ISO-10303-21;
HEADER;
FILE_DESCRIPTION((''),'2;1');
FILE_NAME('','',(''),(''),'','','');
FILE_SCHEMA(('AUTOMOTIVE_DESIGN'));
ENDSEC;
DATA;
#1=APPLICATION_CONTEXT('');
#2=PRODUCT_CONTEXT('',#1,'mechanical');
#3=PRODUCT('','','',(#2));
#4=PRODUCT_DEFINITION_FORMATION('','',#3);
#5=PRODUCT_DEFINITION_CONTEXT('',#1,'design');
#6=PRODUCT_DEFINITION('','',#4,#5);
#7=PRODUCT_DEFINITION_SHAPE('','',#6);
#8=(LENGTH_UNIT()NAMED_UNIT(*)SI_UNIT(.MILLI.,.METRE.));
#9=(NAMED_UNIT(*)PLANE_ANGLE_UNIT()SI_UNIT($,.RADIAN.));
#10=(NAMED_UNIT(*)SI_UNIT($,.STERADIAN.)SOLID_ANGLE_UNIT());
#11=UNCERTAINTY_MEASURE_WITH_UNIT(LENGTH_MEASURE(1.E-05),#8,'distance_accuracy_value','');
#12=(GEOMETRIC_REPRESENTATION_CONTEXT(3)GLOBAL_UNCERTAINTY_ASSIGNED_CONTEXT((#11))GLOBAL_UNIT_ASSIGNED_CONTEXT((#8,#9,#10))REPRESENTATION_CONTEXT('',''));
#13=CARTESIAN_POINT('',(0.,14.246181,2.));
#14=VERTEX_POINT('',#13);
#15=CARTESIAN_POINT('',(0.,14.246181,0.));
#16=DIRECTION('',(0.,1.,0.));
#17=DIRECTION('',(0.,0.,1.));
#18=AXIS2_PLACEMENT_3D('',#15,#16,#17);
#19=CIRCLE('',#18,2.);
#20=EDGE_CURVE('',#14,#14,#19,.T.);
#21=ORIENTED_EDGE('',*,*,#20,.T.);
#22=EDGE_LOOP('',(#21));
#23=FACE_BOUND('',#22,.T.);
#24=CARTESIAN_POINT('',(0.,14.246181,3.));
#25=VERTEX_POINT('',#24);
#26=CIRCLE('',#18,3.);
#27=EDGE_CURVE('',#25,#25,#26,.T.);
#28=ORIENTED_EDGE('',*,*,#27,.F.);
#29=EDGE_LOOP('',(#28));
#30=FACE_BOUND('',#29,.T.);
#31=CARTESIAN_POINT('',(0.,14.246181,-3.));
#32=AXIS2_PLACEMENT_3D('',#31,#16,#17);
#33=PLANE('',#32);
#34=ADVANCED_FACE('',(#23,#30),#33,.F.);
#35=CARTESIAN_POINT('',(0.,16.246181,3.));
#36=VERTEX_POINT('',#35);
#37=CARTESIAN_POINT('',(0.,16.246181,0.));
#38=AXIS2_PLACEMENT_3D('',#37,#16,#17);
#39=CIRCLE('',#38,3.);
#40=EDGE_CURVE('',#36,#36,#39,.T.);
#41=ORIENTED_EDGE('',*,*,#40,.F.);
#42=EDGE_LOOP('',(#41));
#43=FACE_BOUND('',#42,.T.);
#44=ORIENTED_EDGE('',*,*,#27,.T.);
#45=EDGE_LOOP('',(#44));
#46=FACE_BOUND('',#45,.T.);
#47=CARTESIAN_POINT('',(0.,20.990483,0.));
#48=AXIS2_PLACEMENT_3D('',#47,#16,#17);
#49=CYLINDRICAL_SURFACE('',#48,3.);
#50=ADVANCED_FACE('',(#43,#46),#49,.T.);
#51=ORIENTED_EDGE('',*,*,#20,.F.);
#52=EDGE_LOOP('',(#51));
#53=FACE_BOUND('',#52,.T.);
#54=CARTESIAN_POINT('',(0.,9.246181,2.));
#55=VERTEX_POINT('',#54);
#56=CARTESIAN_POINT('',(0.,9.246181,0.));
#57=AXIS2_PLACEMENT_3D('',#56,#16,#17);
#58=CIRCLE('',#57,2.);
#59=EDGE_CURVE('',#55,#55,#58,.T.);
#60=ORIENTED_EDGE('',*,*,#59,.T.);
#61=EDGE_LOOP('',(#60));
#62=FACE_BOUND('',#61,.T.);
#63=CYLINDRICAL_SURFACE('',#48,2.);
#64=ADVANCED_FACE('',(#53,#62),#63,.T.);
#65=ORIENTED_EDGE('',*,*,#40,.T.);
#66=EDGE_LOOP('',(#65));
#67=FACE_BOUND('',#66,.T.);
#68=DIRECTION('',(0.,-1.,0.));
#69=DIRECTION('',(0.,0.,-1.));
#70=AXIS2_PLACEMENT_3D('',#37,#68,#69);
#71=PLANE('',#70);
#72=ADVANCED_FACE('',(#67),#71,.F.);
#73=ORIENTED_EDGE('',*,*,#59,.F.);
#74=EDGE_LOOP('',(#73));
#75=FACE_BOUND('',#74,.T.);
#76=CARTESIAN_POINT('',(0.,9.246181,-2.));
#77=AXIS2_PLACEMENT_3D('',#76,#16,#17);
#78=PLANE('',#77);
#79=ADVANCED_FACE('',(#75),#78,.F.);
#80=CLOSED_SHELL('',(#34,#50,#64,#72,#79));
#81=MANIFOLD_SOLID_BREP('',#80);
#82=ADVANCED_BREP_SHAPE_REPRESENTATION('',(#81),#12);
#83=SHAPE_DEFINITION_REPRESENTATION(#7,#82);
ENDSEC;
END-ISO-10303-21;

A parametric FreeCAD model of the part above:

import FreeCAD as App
import Part
import Sketcher
from FreeCAD import Vector


def add_polygon(sketch, points):
    """Adds a closed chain of lines whose ends are joined by coincident constraints."""
    first, n = sketch.GeometryCount, len(points)
    for a, b in zip(points, points[1:] + points[:1]):
        sketch.addGeometry(Part.LineSegment(App.Vector(*a, 0), App.Vector(*b, 0)), False)
    for i in range(n):
        sketch.addConstraint(Sketcher.Constraint("Coincident", first + i, 2, first + (i + 1) % n, 1))

doc = App.newDocument("Part")
body = doc.addObject("PartDesign::Body", "Body")

sketch1 = body.newObject("Sketcher::SketchObject", "Sketch")
sketch1.AttachmentSupport = (doc.getObject("YZ_Plane"), [""])
sketch1.MapMode = "FlatFace"
add_polygon(sketch1, [(16.246181, -3), (16.246181, 0), (9.246181, 0), (9.246181, -2), (14.246181, -2), (14.246181, -3)])
sketch1.addConstraint([
    Sketcher.Constraint("Vertical", 0),
    Sketcher.Constraint("Horizontal", 1),
    Sketcher.Constraint("Vertical", 2),
    Sketcher.Constraint("Horizontal", 3),
    Sketcher.Constraint("Vertical", 4),
    Sketcher.Constraint("Horizontal", 5),
    Sketcher.Constraint("PointOnObject", 0, 2, -1),
    Sketcher.Constraint("Equal", 5, 2),
    Sketcher.Constraint("DistanceX", 1, 2, 1, 1, 7.0),
    Sketcher.Constraint("DistanceX", 3, 1, 3, 2, 5.0),
    Sketcher.Constraint("DistanceY", 0, 1, 0, 2, 3.0),
    Sketcher.Constraint("DistanceX", -1, 1, 0, 2, 16.246181),
])
revolution = body.newObject("PartDesign::Revolution", "Revolution")
revolution.Profile = sketch1
revolution.ReferenceAxis = (sketch1, ["H_Axis"])
revolution.Angle = 360

doc.recompute()
